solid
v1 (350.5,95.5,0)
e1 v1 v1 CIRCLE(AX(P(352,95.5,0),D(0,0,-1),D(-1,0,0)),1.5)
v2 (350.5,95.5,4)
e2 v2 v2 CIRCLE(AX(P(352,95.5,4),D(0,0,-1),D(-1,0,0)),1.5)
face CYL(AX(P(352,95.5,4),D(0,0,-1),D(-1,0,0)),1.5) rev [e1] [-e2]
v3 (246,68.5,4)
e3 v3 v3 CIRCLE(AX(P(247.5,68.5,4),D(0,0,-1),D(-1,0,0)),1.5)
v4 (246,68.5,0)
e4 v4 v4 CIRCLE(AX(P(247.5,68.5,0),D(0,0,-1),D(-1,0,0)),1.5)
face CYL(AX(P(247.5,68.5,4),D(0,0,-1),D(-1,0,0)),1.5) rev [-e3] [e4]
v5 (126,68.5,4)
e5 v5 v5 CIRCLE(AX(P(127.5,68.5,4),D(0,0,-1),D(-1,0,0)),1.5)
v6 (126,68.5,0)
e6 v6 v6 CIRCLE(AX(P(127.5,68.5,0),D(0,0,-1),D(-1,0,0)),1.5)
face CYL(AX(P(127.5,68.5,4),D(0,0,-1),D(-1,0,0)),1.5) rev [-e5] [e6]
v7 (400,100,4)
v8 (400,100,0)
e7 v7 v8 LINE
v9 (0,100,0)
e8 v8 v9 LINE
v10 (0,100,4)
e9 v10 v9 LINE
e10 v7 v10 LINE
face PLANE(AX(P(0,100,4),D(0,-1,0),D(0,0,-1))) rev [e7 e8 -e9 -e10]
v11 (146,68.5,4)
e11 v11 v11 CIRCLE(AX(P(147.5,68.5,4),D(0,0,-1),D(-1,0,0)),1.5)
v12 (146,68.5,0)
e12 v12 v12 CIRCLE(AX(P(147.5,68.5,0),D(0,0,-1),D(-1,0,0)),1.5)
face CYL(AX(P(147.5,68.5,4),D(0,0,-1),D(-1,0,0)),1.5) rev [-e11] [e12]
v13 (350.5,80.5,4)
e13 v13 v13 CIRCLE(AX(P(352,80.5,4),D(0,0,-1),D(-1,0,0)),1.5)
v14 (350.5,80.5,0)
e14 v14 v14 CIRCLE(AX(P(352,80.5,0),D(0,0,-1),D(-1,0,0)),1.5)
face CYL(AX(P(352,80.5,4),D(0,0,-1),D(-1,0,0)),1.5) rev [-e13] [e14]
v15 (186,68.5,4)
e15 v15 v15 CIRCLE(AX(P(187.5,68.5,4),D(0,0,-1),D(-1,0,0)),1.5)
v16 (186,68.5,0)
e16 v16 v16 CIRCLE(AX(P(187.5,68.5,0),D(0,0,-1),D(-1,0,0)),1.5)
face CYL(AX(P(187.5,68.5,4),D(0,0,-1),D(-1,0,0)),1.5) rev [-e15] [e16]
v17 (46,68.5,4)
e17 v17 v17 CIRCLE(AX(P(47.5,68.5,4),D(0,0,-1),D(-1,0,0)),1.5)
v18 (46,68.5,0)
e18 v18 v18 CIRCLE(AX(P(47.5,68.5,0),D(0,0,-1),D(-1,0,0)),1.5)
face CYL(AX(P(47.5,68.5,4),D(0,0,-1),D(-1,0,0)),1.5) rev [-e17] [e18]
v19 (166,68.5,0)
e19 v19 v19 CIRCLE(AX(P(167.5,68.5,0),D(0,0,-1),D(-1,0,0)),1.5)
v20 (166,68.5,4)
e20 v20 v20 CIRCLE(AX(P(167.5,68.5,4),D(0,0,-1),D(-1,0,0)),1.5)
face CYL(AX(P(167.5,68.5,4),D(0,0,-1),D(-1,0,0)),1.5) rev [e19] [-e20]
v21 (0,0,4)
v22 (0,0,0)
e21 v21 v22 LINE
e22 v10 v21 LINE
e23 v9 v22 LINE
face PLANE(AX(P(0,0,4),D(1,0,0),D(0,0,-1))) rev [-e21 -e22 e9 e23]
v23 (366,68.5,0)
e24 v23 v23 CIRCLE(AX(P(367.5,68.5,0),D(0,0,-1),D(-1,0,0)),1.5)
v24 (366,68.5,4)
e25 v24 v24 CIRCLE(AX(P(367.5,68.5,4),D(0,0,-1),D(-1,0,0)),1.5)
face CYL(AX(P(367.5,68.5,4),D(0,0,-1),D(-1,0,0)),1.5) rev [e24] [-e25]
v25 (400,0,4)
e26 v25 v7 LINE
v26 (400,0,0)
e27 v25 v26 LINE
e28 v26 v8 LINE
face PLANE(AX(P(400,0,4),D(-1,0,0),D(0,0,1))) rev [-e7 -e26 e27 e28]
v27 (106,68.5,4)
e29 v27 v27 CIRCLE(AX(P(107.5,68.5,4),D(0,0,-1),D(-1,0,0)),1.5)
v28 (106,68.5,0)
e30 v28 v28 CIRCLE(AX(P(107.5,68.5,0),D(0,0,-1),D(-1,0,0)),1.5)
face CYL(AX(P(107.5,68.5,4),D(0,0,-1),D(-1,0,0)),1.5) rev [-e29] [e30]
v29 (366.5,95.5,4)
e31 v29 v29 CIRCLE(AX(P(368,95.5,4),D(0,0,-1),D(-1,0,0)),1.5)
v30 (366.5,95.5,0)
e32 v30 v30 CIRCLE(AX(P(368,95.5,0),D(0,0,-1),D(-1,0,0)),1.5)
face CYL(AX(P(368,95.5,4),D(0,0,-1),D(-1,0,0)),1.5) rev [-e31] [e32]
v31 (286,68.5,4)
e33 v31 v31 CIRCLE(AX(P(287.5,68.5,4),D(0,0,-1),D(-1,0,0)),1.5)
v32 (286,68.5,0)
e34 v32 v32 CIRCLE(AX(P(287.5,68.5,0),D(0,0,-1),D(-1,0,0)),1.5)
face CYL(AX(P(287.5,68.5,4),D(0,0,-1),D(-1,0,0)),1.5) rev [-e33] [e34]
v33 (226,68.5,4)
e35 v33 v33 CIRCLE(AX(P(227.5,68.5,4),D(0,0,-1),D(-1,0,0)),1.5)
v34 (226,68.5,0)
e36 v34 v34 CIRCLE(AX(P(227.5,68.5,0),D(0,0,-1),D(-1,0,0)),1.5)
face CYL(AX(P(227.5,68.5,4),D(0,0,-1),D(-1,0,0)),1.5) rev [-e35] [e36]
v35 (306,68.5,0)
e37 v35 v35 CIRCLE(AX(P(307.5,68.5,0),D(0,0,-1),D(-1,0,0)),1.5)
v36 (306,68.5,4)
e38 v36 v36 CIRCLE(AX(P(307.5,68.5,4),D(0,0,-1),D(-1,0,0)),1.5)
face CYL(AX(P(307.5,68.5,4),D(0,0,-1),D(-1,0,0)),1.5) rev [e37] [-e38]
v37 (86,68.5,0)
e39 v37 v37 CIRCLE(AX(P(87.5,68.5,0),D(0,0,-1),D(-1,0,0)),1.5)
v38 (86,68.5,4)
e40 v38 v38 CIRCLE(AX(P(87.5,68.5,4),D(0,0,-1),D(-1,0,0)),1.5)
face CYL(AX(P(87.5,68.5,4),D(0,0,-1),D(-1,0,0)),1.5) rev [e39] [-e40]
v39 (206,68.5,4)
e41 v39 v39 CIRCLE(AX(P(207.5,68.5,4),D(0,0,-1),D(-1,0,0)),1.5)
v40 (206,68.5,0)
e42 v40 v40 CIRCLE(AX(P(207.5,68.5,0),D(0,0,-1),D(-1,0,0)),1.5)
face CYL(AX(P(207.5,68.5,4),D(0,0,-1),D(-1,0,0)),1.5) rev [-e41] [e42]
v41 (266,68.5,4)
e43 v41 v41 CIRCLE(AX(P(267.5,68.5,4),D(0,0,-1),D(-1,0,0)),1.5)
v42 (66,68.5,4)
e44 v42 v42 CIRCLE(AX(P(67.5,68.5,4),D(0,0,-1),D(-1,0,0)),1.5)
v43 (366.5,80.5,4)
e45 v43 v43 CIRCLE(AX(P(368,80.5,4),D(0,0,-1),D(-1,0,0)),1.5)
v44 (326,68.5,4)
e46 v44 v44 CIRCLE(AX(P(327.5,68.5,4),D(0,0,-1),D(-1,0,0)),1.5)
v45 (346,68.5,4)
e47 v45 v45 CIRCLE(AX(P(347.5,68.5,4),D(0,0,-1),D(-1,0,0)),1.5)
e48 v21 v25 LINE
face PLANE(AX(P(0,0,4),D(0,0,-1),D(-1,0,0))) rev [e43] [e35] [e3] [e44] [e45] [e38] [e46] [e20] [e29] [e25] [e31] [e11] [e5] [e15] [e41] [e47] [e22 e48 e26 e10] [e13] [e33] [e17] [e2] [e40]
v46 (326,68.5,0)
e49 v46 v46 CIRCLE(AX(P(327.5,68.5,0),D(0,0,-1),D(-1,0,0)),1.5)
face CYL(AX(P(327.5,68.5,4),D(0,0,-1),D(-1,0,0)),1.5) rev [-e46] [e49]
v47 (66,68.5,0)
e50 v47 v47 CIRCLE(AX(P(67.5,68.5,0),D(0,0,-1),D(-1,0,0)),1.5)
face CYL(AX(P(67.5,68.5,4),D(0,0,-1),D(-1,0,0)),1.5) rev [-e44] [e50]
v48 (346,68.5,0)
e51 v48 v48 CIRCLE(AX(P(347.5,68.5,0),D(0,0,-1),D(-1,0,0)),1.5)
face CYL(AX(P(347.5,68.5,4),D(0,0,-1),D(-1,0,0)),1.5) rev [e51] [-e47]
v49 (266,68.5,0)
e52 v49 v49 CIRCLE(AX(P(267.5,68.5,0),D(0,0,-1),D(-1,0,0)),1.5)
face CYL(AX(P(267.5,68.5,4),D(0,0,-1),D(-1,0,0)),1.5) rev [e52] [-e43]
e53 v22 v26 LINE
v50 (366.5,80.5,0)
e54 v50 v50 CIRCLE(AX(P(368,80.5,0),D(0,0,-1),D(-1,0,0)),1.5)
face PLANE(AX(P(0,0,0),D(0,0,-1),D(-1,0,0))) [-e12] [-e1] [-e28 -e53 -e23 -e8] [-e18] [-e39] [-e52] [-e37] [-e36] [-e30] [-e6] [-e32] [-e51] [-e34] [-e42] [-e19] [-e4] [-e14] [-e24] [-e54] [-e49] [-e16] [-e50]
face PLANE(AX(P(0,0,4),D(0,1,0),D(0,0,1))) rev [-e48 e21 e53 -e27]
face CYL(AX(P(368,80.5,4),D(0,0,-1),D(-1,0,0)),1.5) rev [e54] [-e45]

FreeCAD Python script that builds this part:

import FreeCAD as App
import Part
import Sketcher
from FreeCAD import Vector
Q = App.Units.Quantity


def add_polygon(sketch, points):
    """Adds a closed chain of lines whose ends are joined by coincident constraints."""
    first, n = sketch.GeometryCount, len(points)
    for a, b in zip(points, points[1:] + points[:1]):
        sketch.addGeometry(Part.LineSegment(App.Vector(*a, 0), App.Vector(*b, 0)), False)
    for i in range(n):
        sketch.addConstraint(Sketcher.Constraint("Coincident", first + i, 2, first + (i + 1) % n, 1))

doc = App.newDocument("Part")
body = doc.addObject("PartDesign::Body", "Body")

# Sketch on XY plane
sketch1 = doc.addObject("Sketcher::SketchObject", "Sketch")
body.addObject(sketch1)
sketch1.AttachmentSupport = (doc.XY_Plane, [""])
sketch1.MapMode = "FlatFace"
add_polygon(sketch1, [(0, 100), (0, 0), (400, 0), (400, 100)])  # lines 0-3
sketch1.addConstraint([
    Sketcher.Constraint("Vertical", 0),
    Sketcher.Constraint("Horizontal", 1),
    Sketcher.Constraint("Vertical", 2),
    Sketcher.Constraint("Horizontal", 3),
    Sketcher.Constraint("Coincident", 0, 2, -1, 1),
    Sketcher.Constraint("DistanceX", 1, 1, 1, 2, Q("400 mm")),
    Sketcher.Constraint("DistanceY", 0, 2, 0, 1, Q("100 mm")),
])
pad1 = doc.addObject("PartDesign::Pad", "Pad")
body.addObject(pad1)
pad1.Profile = sketch1
pad1.Length = 4

# Sketch on XY plane
sketch2 = doc.addObject("Sketcher::SketchObject", "Sketch001")
body.addObject(sketch2)
sketch2.AttachmentSupport = (doc.XY_Plane, [""])
sketch2.MapMode = "FlatFace"
sketch2.addGeometry([
    Part.Circle(Vector(368, 95.5, 0), Vector(0, 0, 1), 1.5),
    Part.Circle(Vector(352, 95.5, 0), Vector(0, 0, 1), 1.5),
    Part.Circle(Vector(368, 80.5, 0), Vector(0, 0, 1), 1.5),
    Part.Circle(Vector(352, 80.5, 0), Vector(0, 0, 1), 1.5),
], False)
sketch2.addConstraint([
    Sketcher.Constraint("Equal", 0, 1),
    Sketcher.Constraint("Equal", 1, 2),
    Sketcher.Constraint("Equal", 2, 3),
    Sketcher.Constraint("Horizontal", 0, 3, 1, 3),
    Sketcher.Constraint("Horizontal", 2, 3, 3, 3),
    Sketcher.Constraint("Vertical", 0, 3, 2, 3),
    Sketcher.Constraint("Vertical", 1, 3, 3, 3),
    Sketcher.Constraint("Diameter", 0, Q("3 mm")),
    Sketcher.Constraint("DistanceX", -1, 1, 0, 3, Q("368 mm")),
    Sketcher.Constraint("DistanceX", -1, 1, 1, 3, Q("352 mm")),
    Sketcher.Constraint("DistanceY", 2, 3, 0, 3, Q("15 mm")),
    Sketcher.Constraint("DistanceY", -1, 1, 0, 3, Q("95.5 mm")),
])
pocket1 = doc.addObject("PartDesign::Pocket", "Pocket")
body.addObject(pocket1)
pocket1.Profile = sketch2
pocket1.Length = 4
pocket1.Reversed = True

# Sketch on XY plane
sketch3 = doc.addObject("Sketcher::SketchObject", "Sketch002")
body.addObject(sketch3)
sketch3.AttachmentSupport = (doc.XY_Plane, [""])
sketch3.MapMode = "FlatFace"
sketch3.addGeometry(Part.Circle(Vector(367.5, 68.5, 0), Vector(0, 0, 1), 1.5), False)
sketch3.addConstraint([
    Sketcher.Constraint("Diameter", 0, Q("3 mm")),
    Sketcher.Constraint("DistanceX", -1, 1, 0, 3, Q("367.5 mm")),
    Sketcher.Constraint("DistanceY", -1, 1, 0, 3, Q("68.5 mm")),
])
pocket2 = doc.addObject("PartDesign::Pocket", "Pocket001")
body.addObject(pocket2)
pocket2.Profile = sketch3
pocket2.Length = 4
pocket2.Reversed = True
doc.recompute()

linearpattern = doc.addObject("PartDesign::LinearPattern", "LinearPattern")
body.addObject(linearpattern)
linearpattern.Originals = [pocket2]
linearpattern.Direction = (doc.X_Axis, [""])
linearpattern.Mode = "offset"
linearpattern.Offset = 20
linearpattern.Occurrences = 17
linearpattern.Reversed = True
body.Tip = linearpattern

doc.recompute()
